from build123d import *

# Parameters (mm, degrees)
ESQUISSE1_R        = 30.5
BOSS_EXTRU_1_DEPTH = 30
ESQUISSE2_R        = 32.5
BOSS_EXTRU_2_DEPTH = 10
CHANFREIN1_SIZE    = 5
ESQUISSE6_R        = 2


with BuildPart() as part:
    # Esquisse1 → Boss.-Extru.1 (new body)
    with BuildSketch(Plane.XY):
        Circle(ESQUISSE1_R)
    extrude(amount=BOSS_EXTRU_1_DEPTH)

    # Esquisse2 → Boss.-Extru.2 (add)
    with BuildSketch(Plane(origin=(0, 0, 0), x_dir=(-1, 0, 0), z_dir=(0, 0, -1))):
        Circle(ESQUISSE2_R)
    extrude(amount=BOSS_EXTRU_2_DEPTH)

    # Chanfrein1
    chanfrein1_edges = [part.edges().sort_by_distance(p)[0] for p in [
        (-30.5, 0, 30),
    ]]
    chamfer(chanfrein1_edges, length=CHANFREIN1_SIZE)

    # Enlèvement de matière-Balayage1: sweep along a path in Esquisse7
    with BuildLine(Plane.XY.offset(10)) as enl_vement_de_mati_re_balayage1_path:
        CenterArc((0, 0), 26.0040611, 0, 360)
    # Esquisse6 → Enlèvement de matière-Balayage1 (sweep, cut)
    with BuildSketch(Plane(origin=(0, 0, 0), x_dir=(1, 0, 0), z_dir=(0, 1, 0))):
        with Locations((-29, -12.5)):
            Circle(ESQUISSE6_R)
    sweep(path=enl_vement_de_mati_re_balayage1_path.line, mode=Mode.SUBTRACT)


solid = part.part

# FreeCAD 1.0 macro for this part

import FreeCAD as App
import Part
import Sketcher

V = App.Vector
Q = App.Units.Quantity


def edges_at(feature, points):
    """Names of the edges that pass closest to the given points."""
    edges = feature.Shape.Edges
    near = lambda p: min(range(len(edges)), key=lambda i: edges[i].distToShape(Part.Vertex(*p))[0])
    return sorted({f"Edge{near(p) + 1}" for p in points})

doc = App.newDocument("Part")
body = doc.addObject("PartDesign::Body", "Body")

# Sketch on XY plane
sketch1 = body.newObject("Sketcher::SketchObject", "Sketch")
sketch1.AttachmentSupport = (doc.getObject("XY_Plane"), [""])
sketch1.MapMode = "FlatFace"
sketch1.addGeometry(Part.Circle(V(0, 0, 0), V(0, 0, 1), 30.5), False)
sketch1.addConstraint([
    Sketcher.Constraint("Coincident", 0, 3, -1, 1),
    Sketcher.Constraint("Diameter", 0, Q("61 mm")),
])
pad1 = body.newObject("PartDesign::Pad", "Pad")
pad1.Profile = sketch1
pad1.Length = 30

# Sketch on XY plane
sketch2 = body.newObject("Sketcher::SketchObject", "Sketch001")
sketch2.AttachmentSupport = (doc.getObject("XY_Plane"), [""])
sketch2.MapMode = "FlatFace"
sketch2.addGeometry(Part.Circle(V(0, 0, 0), V(0, 0, 1), 32.5), False)
sketch2.addConstraint([
    Sketcher.Constraint("Coincident", 0, 3, -1, 1),
    Sketcher.Constraint("Diameter", 0, Q("65 mm")),
])
pad2 = body.newObject("PartDesign::Pad", "Pad001")
pad2.Profile = sketch2
pad2.Length = 10
pad2.Reversed = True
doc.recompute()

chamfer = body.newObject("PartDesign::Chamfer", "Chamfer")
chamfer.Base = (pad2, edges_at(pad2, [(-30.5, 0, 30)]))
chamfer.Size = 5

# Sketch on XZ plane
sketch3 = body.newObject("Sketcher::SketchObject", "Sketch002")
sketch3.AttachmentSupport = (doc.getObject("XZ_Plane"), [""])
sketch3.MapMode = "FlatFace"
sketch3.addGeometry(Part.Circle(V(-29, 12.5, 0), V(0, 0, 1), 2), False)
sketch3.addConstraint([
    Sketcher.Constraint("Diameter", 0, Q("4 mm")),
    Sketcher.Constraint("DistanceX", 0, 3, -1, 1, Q("29 mm")),
    Sketcher.Constraint("DistanceY", -1, 1, 0, 3, Q("12.5 mm")),
])

# Sketch on XY plane
sketch4 = body.newObject("Sketcher::SketchObject", "Sketch003")
sketch4.AttachmentSupport = (doc.getObject("XY_Plane"), [""])
sketch4.MapMode = "FlatFace"
sketch4.AttachmentOffset = App.Placement(V(0, 0, 10), App.Rotation())
sketch4.addGeometry(Part.Circle(V(0, 0, 0), V(0, 0, 1), 26.004061), False)
sketch4.addConstraint([
    Sketcher.Constraint("Coincident", 0, 3, -1, 1),
    Sketcher.Constraint("Diameter", 0, Q("52.008122 mm")),
])
doc.recompute()

subtractivepipe = body.newObject("PartDesign::SubtractivePipe", "SubtractivePipe")
subtractivepipe.Profile = sketch3
subtractivepipe.Spine = (sketch4, ["Edge1"])

doc.recompute()
